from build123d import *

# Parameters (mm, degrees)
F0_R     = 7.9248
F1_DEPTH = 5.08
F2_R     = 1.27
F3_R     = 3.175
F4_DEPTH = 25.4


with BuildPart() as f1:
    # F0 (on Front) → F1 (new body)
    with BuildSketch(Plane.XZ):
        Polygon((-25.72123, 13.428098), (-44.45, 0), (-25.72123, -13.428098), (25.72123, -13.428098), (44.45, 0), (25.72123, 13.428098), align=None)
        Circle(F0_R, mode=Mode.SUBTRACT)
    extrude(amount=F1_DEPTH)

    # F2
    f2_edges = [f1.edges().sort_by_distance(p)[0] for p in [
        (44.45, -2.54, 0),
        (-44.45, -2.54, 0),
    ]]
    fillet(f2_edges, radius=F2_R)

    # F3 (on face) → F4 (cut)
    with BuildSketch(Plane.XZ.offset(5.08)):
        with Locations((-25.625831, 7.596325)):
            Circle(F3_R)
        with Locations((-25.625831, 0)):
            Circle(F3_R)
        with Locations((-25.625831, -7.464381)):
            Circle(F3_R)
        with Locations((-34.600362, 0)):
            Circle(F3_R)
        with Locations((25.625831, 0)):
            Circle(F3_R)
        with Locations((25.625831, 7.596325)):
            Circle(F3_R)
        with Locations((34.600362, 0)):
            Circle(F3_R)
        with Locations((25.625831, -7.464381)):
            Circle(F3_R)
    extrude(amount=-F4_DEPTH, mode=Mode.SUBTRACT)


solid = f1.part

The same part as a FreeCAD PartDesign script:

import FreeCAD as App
import Part
import Sketcher

V = App.Vector
Q = App.Units.Quantity


def edges_at(feature, points):
    """Names of the edges that pass closest to the given points."""
    edges = feature.Shape.Edges
    near = lambda p: min(range(len(edges)), key=lambda i: edges[i].distToShape(Part.Vertex(*p))[0])
    return sorted({f"Edge{near(p) + 1}" for p in points})


def add_polygon(sketch, points):
    """Adds a closed chain of lines whose ends are joined by coincident constraints."""
    first, n = sketch.GeometryCount, len(points)
    for a, b in zip(points, points[1:] + points[:1]):
        sketch.addGeometry(Part.LineSegment(App.Vector(*a, 0), App.Vector(*b, 0)), False)
    for i in range(n):
        sketch.addConstraint(Sketcher.Constraint("Coincident", first + i, 2, first + (i + 1) % n, 1))

doc = App.newDocument("Part")
params = doc.addObject("Spreadsheet::Sheet", "Params")
for row, (alias, value) in enumerate([
    ("sketch1_diameter", "0.624 in"),
    ("pad1_length", "0.2 in"),
    ("fillet_radius", "0.05 in"),
    ("sketch2_diameter", "0.25 in"),
    ("pocket1_length", "1 in"),
], start=1):
    params.set(f"A{row}", alias)
    params.set(f"B{row}", "=" + value)
    params.setAlias(f"B{row}", alias)

body = doc.addObject("PartDesign::Body", "Body")

sketch1 = doc.addObject("Sketcher::SketchObject", "Sketch")
body.addObject(sketch1)
sketch1.AttachmentSupport = (doc.XZ_Plane, [""])
sketch1.MapMode = "FlatFace"
add_polygon(sketch1, [(-26, 13), (-44, 0), (-26, -13), (26, -13), (44, 0), (26, 13)])
sketch1.addGeometry(Part.Circle(V(0, 0, 0), V(0, 0, 1), 8), False)
sketch1.addConstraint(Sketcher.Constraint("Horizontal", 2))
sketch1.addConstraint(Sketcher.Constraint("Horizontal", 5))
sketch1.addConstraint(Sketcher.Constraint("Coincident", 6, 3, -1, 1))
sketch1.addConstraint(Sketcher.Constraint("Symmetric", 0, 2, 3, 2, -1, 1))
sketch1.addConstraint(Sketcher.Constraint("Symmetric", 1, 2, 4, 2, -1, 1))
sketch1.addConstraint(Sketcher.Constraint("PointOnObject", 0, 2, -1))
sketch1.addConstraint(Sketcher.Constraint("Parallel", 0, 3))
sketch1.addConstraint(Sketcher.Constraint("Vertical", 2, 2, 4, 2))
sketch1.addConstraint(Sketcher.Constraint("Diameter", 6, Q("0.624 in")))
sketch1.addConstraint(Sketcher.Constraint("DistanceX", 0, 2, 3, 2, Q("3.5 in")))
sketch1.addConstraint(Sketcher.Constraint("DistanceX", 2, 1, 2, 2, 51.44246))
sketch1.addConstraint(Sketcher.Constraint("Distance", 0, 23.045187))
sketch1.setExpression("Constraints[14]", "Params.sketch1_diameter")
pad1 = doc.addObject("PartDesign::Pad", "Pad")
body.addObject(pad1)
pad1.Profile = sketch1
pad1.setExpression("Length", "Params.pad1_length")
doc.recompute()

fillet = doc.addObject("PartDesign::Fillet", "Fillet")
body.addObject(fillet)
fillet.Base = (pad1, edges_at(pad1, [(44.45, -2.54, 0), (-44.45, -2.54, 0)]))
fillet.setExpression("Radius", "Params.fillet_radius")

sketch2 = doc.addObject("Sketcher::SketchObject", "Sketch001")
body.addObject(sketch2)
sketch2.AttachmentSupport = (doc.XZ_Plane, [""])
sketch2.MapMode = "FlatFace"
sketch2.AttachmentOffset = App.Placement(V(0, 0, 0.2 * 25.4), App.Rotation())
sketch2.addGeometry(Part.Circle(V(-25.6, 7.6, 0), V(0, 0, 1), 3.2), False)
sketch2.addGeometry(Part.Circle(V(-25.6, 0, 0), V(0, 0, 1), 3.2), False)
sketch2.addGeometry(Part.Circle(V(-25.6, -7.5, 0), V(0, 0, 1), 3.2), False)
sketch2.addGeometry(Part.Circle(V(-34.6, 0, 0), V(0, 0, 1), 3.2), False)
sketch2.addGeometry(Part.Circle(V(25.6, 0, 0), V(0, 0, 1), 3.2), False)
sketch2.addGeometry(Part.Circle(V(25.6, 7.6, 0), V(0, 0, 1), 3.2), False)
sketch2.addGeometry(Part.Circle(V(34.6, 0, 0), V(0, 0, 1), 3.2), False)
sketch2.addGeometry(Part.Circle(V(25.6, -7.5, 0), V(0, 0, 1), 3.2), False)
sketch2.addConstraint(Sketcher.Constraint("Equal", 0, 1))
sketch2.addConstraint(Sketcher.Constraint("Equal", 1, 2))
sketch2.addConstraint(Sketcher.Constraint("Equal", 2, 3))
sketch2.addConstraint(Sketcher.Constraint("Equal", 3, 4))
sketch2.addConstraint(Sketcher.Constraint("Equal", 4, 5))
sketch2.addConstraint(Sketcher.Constraint("Equal", 5, 6))
sketch2.addConstraint(Sketcher.Constraint("Equal", 6, 7))
sketch2.addConstraint(Sketcher.Constraint("Symmetric", 1, 3, 4, 3, -1, 1))
sketch2.addConstraint(Sketcher.Constraint("Symmetric", 3, 3, 6, 3, -1, 1))
sketch2.addConstraint(Sketcher.Constraint("Symmetric", 0, 3, 5, 3, -2))
sketch2.addConstraint(Sketcher.Constraint("Symmetric", 2, 3, 7, 3, -2))
sketch2.addConstraint(Sketcher.Constraint("PointOnObject", 1, 3, -1))
sketch2.addConstraint(Sketcher.Constraint("PointOnObject", 3, 3, -1))
sketch2.addConstraint(Sketcher.Constraint("Vertical", 0, 3, 1, 3))
sketch2.addConstraint(Sketcher.Constraint("Vertical", 1, 3, 2, 3))
sketch2.addConstraint(Sketcher.Constraint("Diameter", 0, Q("0.25 in")))
sketch2.addConstraint(Sketcher.Constraint("DistanceX", 0, 3, -1, 1, 25.625831))
sketch2.addConstraint(Sketcher.Constraint("DistanceY", 2, 3, -1, 1, 7.464381))
sketch2.addConstraint(Sketcher.Constraint("DistanceX", 3, 3, -1, 1, 34.600362))
sketch2.addConstraint(Sketcher.Constraint("DistanceY", -1, 1, 0, 3, 7.596325))
sketch2.setExpression("Constraints[15]", "Params.sketch2_diameter")
pocket1 = doc.addObject("PartDesign::Pocket", "Pocket")
body.addObject(pocket1)
pocket1.Profile = sketch2
pocket1.setExpression("Length", "Params.pocket1_length")

doc.recompute()
